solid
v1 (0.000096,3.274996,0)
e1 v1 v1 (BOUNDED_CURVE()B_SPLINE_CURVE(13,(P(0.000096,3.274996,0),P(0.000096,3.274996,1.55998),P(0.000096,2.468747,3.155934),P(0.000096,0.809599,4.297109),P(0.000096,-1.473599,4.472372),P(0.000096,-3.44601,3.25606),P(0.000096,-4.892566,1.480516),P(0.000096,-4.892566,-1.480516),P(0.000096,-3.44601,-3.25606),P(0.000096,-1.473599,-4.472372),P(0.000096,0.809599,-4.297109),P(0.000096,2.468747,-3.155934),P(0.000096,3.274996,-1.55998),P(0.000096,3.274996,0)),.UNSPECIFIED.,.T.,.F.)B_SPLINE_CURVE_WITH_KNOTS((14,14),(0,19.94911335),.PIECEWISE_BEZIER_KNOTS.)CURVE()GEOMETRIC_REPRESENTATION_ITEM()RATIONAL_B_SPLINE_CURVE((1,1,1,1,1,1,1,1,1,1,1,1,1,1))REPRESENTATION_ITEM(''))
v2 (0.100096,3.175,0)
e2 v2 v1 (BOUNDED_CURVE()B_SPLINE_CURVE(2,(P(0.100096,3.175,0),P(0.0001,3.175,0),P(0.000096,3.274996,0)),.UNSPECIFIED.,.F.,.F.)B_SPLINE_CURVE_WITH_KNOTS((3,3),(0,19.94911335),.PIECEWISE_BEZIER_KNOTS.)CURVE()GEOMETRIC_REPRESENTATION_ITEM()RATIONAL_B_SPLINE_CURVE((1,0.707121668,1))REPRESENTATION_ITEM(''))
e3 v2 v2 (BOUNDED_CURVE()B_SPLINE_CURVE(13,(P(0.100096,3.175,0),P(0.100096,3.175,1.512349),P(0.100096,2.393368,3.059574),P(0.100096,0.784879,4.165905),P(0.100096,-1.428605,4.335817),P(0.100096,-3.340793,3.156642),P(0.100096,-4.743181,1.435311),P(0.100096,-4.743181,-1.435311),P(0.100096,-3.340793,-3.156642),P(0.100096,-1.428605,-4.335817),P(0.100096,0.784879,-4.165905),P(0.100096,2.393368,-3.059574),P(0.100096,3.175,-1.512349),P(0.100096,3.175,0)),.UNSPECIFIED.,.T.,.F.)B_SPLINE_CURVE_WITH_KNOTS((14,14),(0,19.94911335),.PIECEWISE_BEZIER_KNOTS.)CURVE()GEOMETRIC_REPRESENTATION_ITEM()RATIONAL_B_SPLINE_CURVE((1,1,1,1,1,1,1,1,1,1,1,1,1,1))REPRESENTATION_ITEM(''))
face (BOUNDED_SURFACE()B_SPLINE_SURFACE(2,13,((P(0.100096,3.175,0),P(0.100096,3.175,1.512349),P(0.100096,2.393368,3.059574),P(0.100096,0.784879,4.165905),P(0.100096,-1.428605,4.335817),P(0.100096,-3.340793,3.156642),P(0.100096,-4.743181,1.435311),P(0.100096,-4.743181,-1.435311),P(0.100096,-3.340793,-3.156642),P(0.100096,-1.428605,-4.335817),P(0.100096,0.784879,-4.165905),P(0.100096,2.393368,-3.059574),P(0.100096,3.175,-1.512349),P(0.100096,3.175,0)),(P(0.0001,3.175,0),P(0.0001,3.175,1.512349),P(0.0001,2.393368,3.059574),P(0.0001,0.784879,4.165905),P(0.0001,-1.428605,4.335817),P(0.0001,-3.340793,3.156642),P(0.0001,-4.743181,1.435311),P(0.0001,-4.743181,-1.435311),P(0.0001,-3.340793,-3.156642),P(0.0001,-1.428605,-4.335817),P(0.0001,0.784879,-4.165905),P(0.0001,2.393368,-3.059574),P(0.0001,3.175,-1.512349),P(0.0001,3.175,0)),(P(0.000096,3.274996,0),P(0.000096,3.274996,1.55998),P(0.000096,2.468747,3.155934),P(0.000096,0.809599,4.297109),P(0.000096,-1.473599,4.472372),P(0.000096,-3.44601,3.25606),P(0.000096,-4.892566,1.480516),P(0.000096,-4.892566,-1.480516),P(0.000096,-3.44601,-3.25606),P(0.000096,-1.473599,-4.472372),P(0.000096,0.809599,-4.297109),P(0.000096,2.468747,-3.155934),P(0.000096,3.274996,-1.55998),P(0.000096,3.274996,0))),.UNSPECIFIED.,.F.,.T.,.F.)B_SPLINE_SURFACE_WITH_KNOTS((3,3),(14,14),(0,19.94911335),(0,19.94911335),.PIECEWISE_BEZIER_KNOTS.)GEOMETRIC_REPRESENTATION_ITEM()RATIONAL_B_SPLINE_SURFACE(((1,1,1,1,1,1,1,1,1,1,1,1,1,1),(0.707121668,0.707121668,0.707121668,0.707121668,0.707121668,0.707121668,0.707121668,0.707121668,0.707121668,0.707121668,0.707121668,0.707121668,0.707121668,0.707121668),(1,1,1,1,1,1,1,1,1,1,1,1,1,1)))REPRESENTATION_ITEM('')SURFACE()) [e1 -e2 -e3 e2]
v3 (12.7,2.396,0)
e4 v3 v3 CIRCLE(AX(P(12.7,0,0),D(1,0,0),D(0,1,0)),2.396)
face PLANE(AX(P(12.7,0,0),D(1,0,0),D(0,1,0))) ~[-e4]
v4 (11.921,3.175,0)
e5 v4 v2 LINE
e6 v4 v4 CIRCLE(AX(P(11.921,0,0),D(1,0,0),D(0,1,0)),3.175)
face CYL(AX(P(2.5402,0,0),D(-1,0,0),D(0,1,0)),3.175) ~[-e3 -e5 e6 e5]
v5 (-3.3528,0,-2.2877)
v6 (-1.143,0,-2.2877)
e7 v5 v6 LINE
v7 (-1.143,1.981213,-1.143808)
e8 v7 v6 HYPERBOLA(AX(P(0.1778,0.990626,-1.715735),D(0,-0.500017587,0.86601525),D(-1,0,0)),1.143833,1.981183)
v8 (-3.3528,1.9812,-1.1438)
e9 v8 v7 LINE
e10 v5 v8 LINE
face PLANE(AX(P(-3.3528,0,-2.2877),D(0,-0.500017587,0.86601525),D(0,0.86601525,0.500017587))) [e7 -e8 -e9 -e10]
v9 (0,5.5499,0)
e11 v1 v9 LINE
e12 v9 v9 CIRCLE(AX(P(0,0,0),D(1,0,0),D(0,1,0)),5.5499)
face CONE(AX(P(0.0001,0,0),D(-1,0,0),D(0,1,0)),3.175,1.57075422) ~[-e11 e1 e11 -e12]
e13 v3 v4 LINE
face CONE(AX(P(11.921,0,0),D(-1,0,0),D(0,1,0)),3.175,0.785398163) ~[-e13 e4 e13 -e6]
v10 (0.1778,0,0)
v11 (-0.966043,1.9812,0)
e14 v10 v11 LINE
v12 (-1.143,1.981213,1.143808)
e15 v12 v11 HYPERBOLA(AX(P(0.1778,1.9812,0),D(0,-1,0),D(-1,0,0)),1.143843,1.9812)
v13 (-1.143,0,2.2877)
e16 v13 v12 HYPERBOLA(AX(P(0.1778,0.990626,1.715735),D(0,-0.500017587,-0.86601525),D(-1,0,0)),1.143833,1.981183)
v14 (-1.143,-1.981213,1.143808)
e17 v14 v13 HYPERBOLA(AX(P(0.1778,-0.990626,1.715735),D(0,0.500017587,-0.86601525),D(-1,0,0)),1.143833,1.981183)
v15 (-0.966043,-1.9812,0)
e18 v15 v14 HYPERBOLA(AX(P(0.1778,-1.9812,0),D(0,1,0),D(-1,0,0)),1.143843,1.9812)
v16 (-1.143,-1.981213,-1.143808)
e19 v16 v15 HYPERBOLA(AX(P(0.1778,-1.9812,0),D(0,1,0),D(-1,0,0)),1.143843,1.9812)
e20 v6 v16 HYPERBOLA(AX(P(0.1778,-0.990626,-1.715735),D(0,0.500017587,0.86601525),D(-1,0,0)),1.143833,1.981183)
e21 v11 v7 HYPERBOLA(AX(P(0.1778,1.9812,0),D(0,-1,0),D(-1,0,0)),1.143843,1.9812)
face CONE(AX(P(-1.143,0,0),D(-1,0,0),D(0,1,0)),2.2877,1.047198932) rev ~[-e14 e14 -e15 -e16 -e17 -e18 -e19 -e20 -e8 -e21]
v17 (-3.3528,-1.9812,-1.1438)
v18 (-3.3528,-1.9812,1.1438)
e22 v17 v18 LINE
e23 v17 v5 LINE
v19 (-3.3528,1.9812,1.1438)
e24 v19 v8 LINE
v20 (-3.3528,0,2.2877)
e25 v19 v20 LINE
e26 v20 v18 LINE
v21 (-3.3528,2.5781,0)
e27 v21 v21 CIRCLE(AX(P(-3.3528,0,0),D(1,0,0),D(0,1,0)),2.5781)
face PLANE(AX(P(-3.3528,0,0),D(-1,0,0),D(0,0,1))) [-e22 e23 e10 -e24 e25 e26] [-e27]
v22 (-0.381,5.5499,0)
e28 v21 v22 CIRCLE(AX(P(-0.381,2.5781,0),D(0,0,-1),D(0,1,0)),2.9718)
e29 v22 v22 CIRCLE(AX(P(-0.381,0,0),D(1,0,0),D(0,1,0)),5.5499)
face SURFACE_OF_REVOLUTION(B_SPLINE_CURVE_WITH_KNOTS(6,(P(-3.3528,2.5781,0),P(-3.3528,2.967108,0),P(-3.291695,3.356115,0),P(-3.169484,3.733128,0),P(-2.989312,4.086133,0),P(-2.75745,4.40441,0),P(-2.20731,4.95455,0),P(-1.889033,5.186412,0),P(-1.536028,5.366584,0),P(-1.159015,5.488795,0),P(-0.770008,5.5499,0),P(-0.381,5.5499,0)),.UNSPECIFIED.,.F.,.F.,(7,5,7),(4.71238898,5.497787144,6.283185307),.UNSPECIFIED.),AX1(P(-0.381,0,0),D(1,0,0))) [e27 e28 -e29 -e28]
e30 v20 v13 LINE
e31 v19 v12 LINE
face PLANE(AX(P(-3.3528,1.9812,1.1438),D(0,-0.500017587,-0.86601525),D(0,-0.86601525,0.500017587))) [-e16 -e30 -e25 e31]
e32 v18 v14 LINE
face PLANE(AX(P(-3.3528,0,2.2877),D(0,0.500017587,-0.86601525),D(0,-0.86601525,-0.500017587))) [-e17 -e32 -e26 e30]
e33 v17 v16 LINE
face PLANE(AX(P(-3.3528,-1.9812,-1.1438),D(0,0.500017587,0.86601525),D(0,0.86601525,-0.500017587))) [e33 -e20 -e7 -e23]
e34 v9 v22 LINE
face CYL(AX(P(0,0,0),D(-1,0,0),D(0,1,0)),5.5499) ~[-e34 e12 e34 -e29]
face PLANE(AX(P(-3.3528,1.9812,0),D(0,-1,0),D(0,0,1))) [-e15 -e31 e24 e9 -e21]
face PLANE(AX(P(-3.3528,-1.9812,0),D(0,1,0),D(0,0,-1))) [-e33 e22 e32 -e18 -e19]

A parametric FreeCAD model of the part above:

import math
import FreeCAD as App
import Part
import Sketcher

V = App.Vector
Q = App.Units.Quantity


def edges_at(feature, points):
    """Names of the edges that pass closest to the given points."""
    edges = feature.Shape.Edges
    near = lambda p: min(range(len(edges)), key=lambda i: edges[i].distToShape(Part.Vertex(*p))[0])
    return sorted({f"Edge{near(p) + 1}" for p in points})

doc = App.newDocument("Part")
body = doc.addObject("PartDesign::Body", "Body")

sketch1 = doc.addObject("Sketcher::SketchObject", "Sketch")
body.addObject(sketch1)
sketch1.AttachmentSupport = (doc.XY_Plane, [""])
sketch1.MapMode = "FlatFace"
sketch1.addGeometry([
    Part.LineSegment(V(0.2, 0, 0), V(12.7, 0, 0)),
    Part.LineSegment(V(12.7, 0, 0), V(12.7, 3.2, 0)),
    Part.LineSegment(V(12.7, 3.2, 0), V(0, 3.2, 0)),
    Part.LineSegment(V(0, 3.2, 0), V(0, 5.5, 0)),
    Part.LineSegment(V(0, 5.5, 0), V(-3.4, 5.5, 0)),
    Part.LineSegment(V(-3.4, 5.5, 0), V(-3.4, 2.3, 0)),
    Part.LineSegment(V(-3.4, 2.3, 0), V(-1.1, 2.3, 0)),
    Part.LineSegment(V(-1.1, 2.3, 0), V(0.2, 0, 0)),
], False)
sketch1.addConstraint([
    Sketcher.Constraint("Coincident", 0, 2, 1, 1),
    Sketcher.Constraint("Coincident", 1, 2, 2, 1),
    Sketcher.Constraint("Coincident", 2, 2, 3, 1),
    Sketcher.Constraint("Coincident", 3, 2, 4, 1),
    Sketcher.Constraint("Coincident", 4, 2, 5, 1),
    Sketcher.Constraint("Coincident", 5, 2, 6, 1),
    Sketcher.Constraint("Coincident", 6, 2, 7, 1),
    Sketcher.Constraint("Coincident", 7, 2, 0, 1),
    Sketcher.Constraint("Horizontal", 0),
    Sketcher.Constraint("Vertical", 1),
    Sketcher.Constraint("Horizontal", 2),
    Sketcher.Constraint("Vertical", 3),
    Sketcher.Constraint("Horizontal", 4),
    Sketcher.Constraint("Vertical", 5),
    Sketcher.Constraint("Horizontal", 6),
    Sketcher.Constraint("PointOnObject", 0, 2, -1),
    Sketcher.Constraint("PointOnObject", 2, 2, -2),
    Sketcher.Constraint("DistanceX", 2, 2, 2, 1, Q("0.5 in")),
    Sketcher.Constraint("Angle", 7, Q("-60 deg")),
    Sketcher.Constraint("DistanceX", 4, 2, 4, 1, Q("0.132 in")),
    Sketcher.Constraint("DistanceX", 6, 1, 6, 2, Q("0.087 in")),
    Sketcher.Constraint("DistanceX", 0, 1, 0, 2, Q("0.493 in")),
    Sketcher.Constraint("DistanceY", 1, 1, 1, 2, Q("0.125 in")),
    Sketcher.Constraint("DistanceY", 3, 1, 3, 2, Q("0.0935 in")),
])
revolution = doc.addObject("PartDesign::Revolution", "Revolution")
body.addObject(revolution)
revolution.Profile = sketch1
revolution.ReferenceAxis = (sketch1, ["H_Axis"])
revolution.Angle = 360

sketch2 = doc.addObject("Sketcher::SketchObject", "Sketch001")
body.addObject(sketch2)
sketch2.AttachmentSupport = (doc.YZ_Plane, [""])
sketch2.MapMode = "FlatFace"
sketch2.AttachmentOffset = App.Placement(V(0, 0, -0.132 * 25.4), App.Rotation())
sketch2.addGeometry([
    Part.LineSegment(V(2, 1.1, 0), V(0, 2.3, 0)),
    Part.ArcOfCircle(Part.Circle(V(0, 0, 0), V(0, 0, 1), 2.3), math.radians(30), math.radians(90)),
    Part.ArcOfCircle(Part.Circle(V(0, 0, 0), V(0, 0, 1), 2.3), math.radians(90), math.radians(150)),
    Part.LineSegment(V(0, 2.3, 0), V(-2, 1.1, 0)),
    Part.ArcOfCircle(Part.Circle(V(0, 0, 0), V(0, 0, 1), 2.3), math.radians(-30), math.radians(30)),
    Part.LineSegment(V(2, 1.1, 0), V(2, -1.1, 0)),
    Part.LineSegment(V(-2, 1.1, 0), V(-2, -1.1, 0)),
    Part.ArcOfCircle(Part.Circle(V(0, 0, 0), V(0, 0, 1), 2.3), math.radians(150), math.radians(210)),
    Part.LineSegment(V(-2, -1.1, 0), V(0, -2.3, 0)),
    Part.ArcOfCircle(Part.Circle(V(0, 0, 0), V(0, 0, 1), 2.3), math.radians(-150), math.radians(-90)),
    Part.ArcOfCircle(Part.Circle(V(0, 0, 0), V(0, 0, 1), 2.3), math.radians(-90), math.radians(-30)),
    Part.LineSegment(V(0, -2.3, 0), V(2, -1.1, 0)),
], False)
sketch2.addConstraint([
    Sketcher.Constraint("Coincident", 0, 1, 1, 1),
    Sketcher.Constraint("Coincident", 1, 2, 0, 2),
    Sketcher.Constraint("Coincident", 2, 1, 3, 1),
    Sketcher.Constraint("Coincident", 3, 2, 2, 2),
    Sketcher.Constraint("Coincident", 4, 1, 5, 2),
    Sketcher.Constraint("Coincident", 5, 1, 4, 2),
    Sketcher.Constraint("Coincident", 6, 1, 7, 1),
    Sketcher.Constraint("Coincident", 7, 2, 6, 2),
    Sketcher.Constraint("Coincident", 8, 1, 9, 1),
    Sketcher.Constraint("Coincident", 9, 2, 8, 2),
    Sketcher.Constraint("Coincident", 10, 1, 11, 1),
    Sketcher.Constraint("Coincident", 11, 2, 10, 2),
    Sketcher.Constraint("Vertical", 5),
    Sketcher.Constraint("Vertical", 6),
    Sketcher.Constraint("Coincident", 1, 3, -1, 1),
    Sketcher.Constraint("Coincident", 2, 3, -1, 1),
    Sketcher.Constraint("Coincident", 4, 3, -1, 1),
    Sketcher.Constraint("Coincident", 7, 3, -1, 1),
    Sketcher.Constraint("Coincident", 9, 3, -1, 1),
    Sketcher.Constraint("Coincident", 10, 3, -1, 1),
    Sketcher.Constraint("Coincident", 2, 1, 1, 2),
    Sketcher.Constraint("Coincident", 5, 1, 0, 1),
    Sketcher.Constraint("Coincident", 6, 1, 3, 2),
    Sketcher.Constraint("Coincident", 8, 1, 7, 2),
    Sketcher.Constraint("Coincident", 10, 1, 9, 2),
    Sketcher.Constraint("PointOnObject", 1, 2, -2),
    Sketcher.Constraint("PointOnObject", 9, 2, -2),
    Sketcher.Constraint("Parallel", 0, 8),
    Sketcher.Constraint("Parallel", 3, 11),
    Sketcher.Constraint("Angle", 0, Q("149.9988 deg")),
    Sketcher.Constraint("Radius", 1, Q("2.2877 mm")),
])
pad1 = doc.addObject("PartDesign::Pad", "Pad")
body.addObject(pad1)
pad1.Profile = sketch2
pad1.Length = 2.3868
doc.recompute()

fillet = doc.addObject("PartDesign::Fillet", "Fillet")
body.addObject(fillet)
fillet.Base = (pad1, edges_at(pad1, [(-3.353, -5.55, 0)]))
fillet.Radius = Q("0.117 in")
doc.recompute()

chamfer = doc.addObject("PartDesign::Chamfer", "Chamfer")
body.addObject(chamfer)
chamfer.Base = (fillet, edges_at(fillet, [(12.7, -3.175, 0)]))
chamfer.ChamferType = "Two distances"
chamfer.Size = 0.779
chamfer.Size2 = 0.779
doc.recompute()

fillet2 = doc.addObject("PartDesign::Fillet", "Fillet001")
body.addObject(fillet2)
fillet2.Base = (chamfer, edges_at(chamfer, [(0, -3.175, 0)]))
fillet2.Radius = 0.1

doc.recompute()
